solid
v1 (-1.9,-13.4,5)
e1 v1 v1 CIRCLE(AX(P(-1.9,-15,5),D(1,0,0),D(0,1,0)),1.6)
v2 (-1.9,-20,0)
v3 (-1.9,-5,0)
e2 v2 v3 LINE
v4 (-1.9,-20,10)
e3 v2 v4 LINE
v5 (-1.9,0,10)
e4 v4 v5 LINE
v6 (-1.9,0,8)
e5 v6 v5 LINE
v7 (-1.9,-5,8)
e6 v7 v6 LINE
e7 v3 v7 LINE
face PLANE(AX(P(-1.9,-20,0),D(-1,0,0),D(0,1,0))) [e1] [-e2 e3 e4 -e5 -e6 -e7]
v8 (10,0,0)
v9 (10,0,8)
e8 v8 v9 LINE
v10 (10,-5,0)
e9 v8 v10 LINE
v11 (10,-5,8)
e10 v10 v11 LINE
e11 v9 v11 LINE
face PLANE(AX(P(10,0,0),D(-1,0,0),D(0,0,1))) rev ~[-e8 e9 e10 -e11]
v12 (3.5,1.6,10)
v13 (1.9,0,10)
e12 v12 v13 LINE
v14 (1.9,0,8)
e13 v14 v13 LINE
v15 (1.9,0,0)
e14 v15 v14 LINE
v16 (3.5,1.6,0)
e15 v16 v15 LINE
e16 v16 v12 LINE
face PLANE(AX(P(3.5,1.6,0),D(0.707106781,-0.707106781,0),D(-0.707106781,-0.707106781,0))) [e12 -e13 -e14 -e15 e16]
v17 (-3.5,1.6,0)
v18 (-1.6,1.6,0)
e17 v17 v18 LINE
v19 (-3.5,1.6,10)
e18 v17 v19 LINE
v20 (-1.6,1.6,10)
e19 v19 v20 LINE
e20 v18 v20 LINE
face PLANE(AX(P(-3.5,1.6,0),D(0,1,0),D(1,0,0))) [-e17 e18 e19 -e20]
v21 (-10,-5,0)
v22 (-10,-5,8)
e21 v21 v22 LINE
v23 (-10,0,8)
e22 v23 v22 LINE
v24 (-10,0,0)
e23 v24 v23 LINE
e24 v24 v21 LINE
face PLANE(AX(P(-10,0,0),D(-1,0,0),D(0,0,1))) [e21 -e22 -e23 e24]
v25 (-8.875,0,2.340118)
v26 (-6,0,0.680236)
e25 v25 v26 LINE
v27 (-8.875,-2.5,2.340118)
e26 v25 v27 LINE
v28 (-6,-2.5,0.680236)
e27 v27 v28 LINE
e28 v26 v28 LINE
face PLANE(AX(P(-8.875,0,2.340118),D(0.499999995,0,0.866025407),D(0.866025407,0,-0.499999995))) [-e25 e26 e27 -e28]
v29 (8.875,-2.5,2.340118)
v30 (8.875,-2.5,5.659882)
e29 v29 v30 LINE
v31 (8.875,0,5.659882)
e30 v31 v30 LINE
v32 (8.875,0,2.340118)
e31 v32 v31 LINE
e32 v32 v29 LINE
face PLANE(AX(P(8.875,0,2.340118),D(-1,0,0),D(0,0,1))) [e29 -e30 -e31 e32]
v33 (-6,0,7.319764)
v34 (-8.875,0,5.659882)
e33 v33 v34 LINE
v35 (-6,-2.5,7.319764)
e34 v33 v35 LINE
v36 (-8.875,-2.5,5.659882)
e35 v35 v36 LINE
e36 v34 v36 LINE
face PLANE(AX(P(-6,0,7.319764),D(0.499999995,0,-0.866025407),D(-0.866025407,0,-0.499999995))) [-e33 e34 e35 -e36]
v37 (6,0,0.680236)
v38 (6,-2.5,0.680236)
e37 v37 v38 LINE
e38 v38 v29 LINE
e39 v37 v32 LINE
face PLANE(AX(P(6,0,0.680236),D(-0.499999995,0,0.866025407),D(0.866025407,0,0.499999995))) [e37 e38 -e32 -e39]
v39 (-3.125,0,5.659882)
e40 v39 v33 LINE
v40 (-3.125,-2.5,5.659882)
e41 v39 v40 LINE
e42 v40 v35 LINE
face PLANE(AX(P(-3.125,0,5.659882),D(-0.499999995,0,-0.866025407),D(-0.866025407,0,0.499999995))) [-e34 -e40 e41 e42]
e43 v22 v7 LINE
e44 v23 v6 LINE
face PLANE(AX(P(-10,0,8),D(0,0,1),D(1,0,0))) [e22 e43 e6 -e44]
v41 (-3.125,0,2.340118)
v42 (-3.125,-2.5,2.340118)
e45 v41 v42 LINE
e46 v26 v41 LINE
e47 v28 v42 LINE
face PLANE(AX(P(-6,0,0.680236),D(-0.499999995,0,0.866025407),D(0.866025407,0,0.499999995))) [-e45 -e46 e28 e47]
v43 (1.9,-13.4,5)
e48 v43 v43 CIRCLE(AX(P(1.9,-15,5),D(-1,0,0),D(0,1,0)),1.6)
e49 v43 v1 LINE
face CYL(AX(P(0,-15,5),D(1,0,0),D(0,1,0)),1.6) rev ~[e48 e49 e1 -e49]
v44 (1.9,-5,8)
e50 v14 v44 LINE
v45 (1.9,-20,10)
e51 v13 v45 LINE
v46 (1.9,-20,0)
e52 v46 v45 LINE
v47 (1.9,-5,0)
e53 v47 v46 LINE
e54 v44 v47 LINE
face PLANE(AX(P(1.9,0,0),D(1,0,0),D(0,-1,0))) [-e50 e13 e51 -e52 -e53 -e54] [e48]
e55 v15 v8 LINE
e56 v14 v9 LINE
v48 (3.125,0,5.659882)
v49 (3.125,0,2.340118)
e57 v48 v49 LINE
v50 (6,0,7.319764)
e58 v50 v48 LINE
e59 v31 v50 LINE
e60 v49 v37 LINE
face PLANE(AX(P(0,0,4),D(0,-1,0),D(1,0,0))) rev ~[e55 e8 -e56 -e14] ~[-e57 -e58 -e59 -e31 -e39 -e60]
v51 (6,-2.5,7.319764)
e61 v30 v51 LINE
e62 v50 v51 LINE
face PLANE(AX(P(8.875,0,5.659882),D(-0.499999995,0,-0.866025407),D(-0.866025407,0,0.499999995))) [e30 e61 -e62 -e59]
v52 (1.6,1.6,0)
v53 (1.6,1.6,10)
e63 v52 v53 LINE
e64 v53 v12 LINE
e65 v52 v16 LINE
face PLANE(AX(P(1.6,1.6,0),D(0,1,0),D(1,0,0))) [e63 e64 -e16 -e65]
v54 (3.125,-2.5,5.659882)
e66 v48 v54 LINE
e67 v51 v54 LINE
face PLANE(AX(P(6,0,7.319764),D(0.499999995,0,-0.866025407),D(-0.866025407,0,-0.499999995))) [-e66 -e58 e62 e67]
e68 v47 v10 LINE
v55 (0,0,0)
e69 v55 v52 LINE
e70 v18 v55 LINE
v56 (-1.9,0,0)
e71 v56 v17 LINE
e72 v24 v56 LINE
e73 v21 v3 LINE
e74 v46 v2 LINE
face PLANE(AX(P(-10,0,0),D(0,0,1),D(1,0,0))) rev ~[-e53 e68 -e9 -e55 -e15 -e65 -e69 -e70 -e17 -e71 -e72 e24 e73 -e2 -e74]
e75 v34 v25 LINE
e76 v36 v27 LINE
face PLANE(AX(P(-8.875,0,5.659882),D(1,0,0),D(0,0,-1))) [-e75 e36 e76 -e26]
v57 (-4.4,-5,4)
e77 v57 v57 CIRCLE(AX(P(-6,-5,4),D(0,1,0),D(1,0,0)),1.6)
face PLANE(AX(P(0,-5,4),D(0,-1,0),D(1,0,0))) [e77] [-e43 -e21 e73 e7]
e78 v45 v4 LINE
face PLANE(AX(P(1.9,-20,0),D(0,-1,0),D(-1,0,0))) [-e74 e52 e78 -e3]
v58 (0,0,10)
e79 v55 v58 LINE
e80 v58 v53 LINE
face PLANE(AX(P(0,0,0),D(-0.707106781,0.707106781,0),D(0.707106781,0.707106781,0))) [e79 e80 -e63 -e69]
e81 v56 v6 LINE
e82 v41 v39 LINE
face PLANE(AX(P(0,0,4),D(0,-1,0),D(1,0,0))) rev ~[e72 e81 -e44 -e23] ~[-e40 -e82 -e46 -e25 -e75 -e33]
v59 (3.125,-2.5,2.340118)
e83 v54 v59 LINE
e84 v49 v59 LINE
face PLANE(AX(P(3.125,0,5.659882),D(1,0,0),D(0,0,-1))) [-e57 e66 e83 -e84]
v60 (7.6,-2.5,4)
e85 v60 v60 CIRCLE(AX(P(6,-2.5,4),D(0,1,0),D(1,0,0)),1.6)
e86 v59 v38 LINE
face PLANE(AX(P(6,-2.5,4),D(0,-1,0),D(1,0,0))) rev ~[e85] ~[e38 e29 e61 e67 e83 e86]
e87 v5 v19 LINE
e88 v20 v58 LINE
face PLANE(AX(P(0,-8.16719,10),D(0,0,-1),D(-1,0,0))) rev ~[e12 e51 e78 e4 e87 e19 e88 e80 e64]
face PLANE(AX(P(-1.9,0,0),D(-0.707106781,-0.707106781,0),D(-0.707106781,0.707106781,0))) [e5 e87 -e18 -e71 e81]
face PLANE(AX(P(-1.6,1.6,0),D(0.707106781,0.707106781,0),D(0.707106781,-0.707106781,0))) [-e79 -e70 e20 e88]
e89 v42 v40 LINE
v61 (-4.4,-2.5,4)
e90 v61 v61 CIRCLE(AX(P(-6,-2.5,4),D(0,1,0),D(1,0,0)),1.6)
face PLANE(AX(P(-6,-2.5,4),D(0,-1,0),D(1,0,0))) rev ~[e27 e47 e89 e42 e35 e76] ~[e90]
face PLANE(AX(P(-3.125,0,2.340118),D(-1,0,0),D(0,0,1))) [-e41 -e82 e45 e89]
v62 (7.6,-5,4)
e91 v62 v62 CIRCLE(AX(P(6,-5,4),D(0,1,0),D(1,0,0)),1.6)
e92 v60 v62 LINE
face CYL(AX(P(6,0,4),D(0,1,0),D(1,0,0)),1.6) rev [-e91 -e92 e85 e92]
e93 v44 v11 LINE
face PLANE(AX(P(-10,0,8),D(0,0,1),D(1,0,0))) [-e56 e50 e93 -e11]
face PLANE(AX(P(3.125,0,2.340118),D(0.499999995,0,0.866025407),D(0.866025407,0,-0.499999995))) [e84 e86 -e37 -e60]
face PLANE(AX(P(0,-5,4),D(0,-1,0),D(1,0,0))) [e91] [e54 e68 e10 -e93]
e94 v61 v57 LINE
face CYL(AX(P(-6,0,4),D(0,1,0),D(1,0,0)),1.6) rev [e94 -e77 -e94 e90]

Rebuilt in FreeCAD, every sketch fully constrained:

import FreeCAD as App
import Part
import Sketcher

V = App.Vector
Q = App.Units.Quantity

doc = App.newDocument("Part")
body = doc.addObject("PartDesign::Body", "Body")

# Sketch on XY plane
sketch1 = doc.addObject("Sketcher::SketchObject", "Sketch")
body.addObject(sketch1)
sketch1.AttachmentSupport = (doc.XY_Plane, [""])
sketch1.MapMode = "FlatFace"
sketch1.addGeometry([
    Part.LineSegment(V(-3.5, 1.6, 0), V(-1.9, 0, 0)),  # 0
    Part.LineSegment(V(-1.9, 0, 0), V(-1.9, -20, 0)),  # 1
    Part.LineSegment(V(-1.9, -20, 0), V(1.9, -20, 0)),  # 2
    Part.LineSegment(V(1.9, -20, 0), V(1.9, 0, 0)),  # 3
    Part.LineSegment(V(1.9, 0, 0), V(3.5, 1.6, 0)),  # 4
    Part.LineSegment(V(3.5, 1.6, 0), V(1.6, 1.6, 0)),  # 5
    Part.LineSegment(V(1.6, 1.6, 0), V(0, 0, 0)),  # 6
    Part.LineSegment(V(0, 0, 0), V(-1.6, 1.6, 0)),  # 7
    Part.LineSegment(V(-1.6, 1.6, 0), V(-3.5, 1.6, 0)),  # 8
], False)
sketch1.addConstraint([
    Sketcher.Constraint("Coincident", 0, 2, 1, 1),
    Sketcher.Constraint("Coincident", 1, 2, 2, 1),
    Sketcher.Constraint("Coincident", 2, 2, 3, 1),
    Sketcher.Constraint("Coincident", 3, 2, 4, 1),
    Sketcher.Constraint("Coincident", 4, 2, 5, 1),
    Sketcher.Constraint("Coincident", 5, 2, 6, 1),
    Sketcher.Constraint("Coincident", 6, 2, 7, 1),
    Sketcher.Constraint("Coincident", 7, 2, 8, 1),
    Sketcher.Constraint("Coincident", 8, 2, 0, 1),
    Sketcher.Constraint("Vertical", 1),
    Sketcher.Constraint("Horizontal", 2),
    Sketcher.Constraint("Vertical", 3),
    Sketcher.Constraint("Horizontal", 5),
    Sketcher.Constraint("Horizontal", 8),
    Sketcher.Constraint("Coincident", 6, 2, -1, 1),
    Sketcher.Constraint("Symmetric", 0, 2, 3, 2, -1, 1),
    Sketcher.Constraint("Symmetric", 5, 2, 7, 2, -2),
    Sketcher.Constraint("PointOnObject", 0, 2, -1),
    Sketcher.Constraint("Perpendicular", 0, 4),
    Sketcher.Constraint("Parallel", 4, 6),
    Sketcher.Constraint("Perpendicular", 6, 7),
    Sketcher.Constraint("DistanceY", 1, 2, 1, 1, 20.0),
    Sketcher.Constraint("DistanceX", 2, 1, 2, 2, 3.8),
    Sketcher.Constraint("DistanceX", -1, 1, 4, 2, 3.5),
])
pad1 = doc.addObject("PartDesign::Pad", "Pad")
body.addObject(pad1)
pad1.Profile = sketch1
pad1.Length = 10

# Sketch on XZ plane
sketch2 = doc.addObject("Sketcher::SketchObject", "Sketch001")
body.addObject(sketch2)
sketch2.AttachmentSupport = (doc.XZ_Plane, [""])
sketch2.MapMode = "FlatFace"
sketch2.addGeometry([
    Part.LineSegment(V(-10, 8, 0), V(-10, 0, 0)),
    Part.LineSegment(V(-10, 0, 0), V(10, 0, 0)),
    Part.LineSegment(V(10, 0, 0), V(10, 8, 0)),
    Part.LineSegment(V(10, 8, 0), V(-10, 8, 0)),
], False)
sketch2.addConstraint([
    Sketcher.Constraint("Coincident", 0, 2, 1, 1),
    Sketcher.Constraint("Coincident", 1, 2, 2, 1),
    Sketcher.Constraint("Coincident", 2, 2, 3, 1),
    Sketcher.Constraint("Coincident", 3, 2, 0, 1),
    Sketcher.Constraint("Vertical", 0),
    Sketcher.Constraint("Horizontal", 1),
    Sketcher.Constraint("Vertical", 2),
    Sketcher.Constraint("Horizontal", 3),
    Sketcher.Constraint("Symmetric", 0, 2, 1, 2, -1, 1),
    Sketcher.Constraint("DistanceX", 1, 1, 1, 2, 20.0),
    Sketcher.Constraint("DistanceY", 0, 2, 0, 1, 8.0),
])
pad2 = doc.addObject("PartDesign::Pad", "Pad001")
body.addObject(pad2)
pad2.Profile = sketch2
pad2.Length = 5

# Sketch on XZ plane
sketch3 = doc.addObject("Sketcher::SketchObject", "Sketch002")
body.addObject(sketch3)
sketch3.AttachmentSupport = (doc.XZ_Plane, [""])
sketch3.MapMode = "FlatFace"
sketch3.addGeometry([
    Part.LineSegment(V(-3.1, 2.3, 0), V(-3.1, 5.7, 0)),  # 0
    Part.LineSegment(V(-3.1, 5.7, 0), V(-6, 7.3, 0)),  # 1
    Part.LineSegment(V(-6, 7.3, 0), V(-8.9, 5.7, 0)),  # 2
    Part.LineSegment(V(-8.9, 5.7, 0), V(-8.9, 2.3, 0)),  # 3
    Part.LineSegment(V(-8.9, 2.3, 0), V(-6, 0.7, 0)),  # 4
    Part.LineSegment(V(-6, 0.7, 0), V(-3.1, 2.3, 0)),  # 5
    Part.LineSegment(V(3.1, 2.3, 0), V(6, 0.7, 0)),  # 6
    Part.LineSegment(V(6, 0.7, 0), V(8.9, 2.3, 0)),  # 7
    Part.LineSegment(V(8.9, 2.3, 0), V(8.9, 5.7, 0)),  # 8
    Part.LineSegment(V(8.9, 5.7, 0), V(6, 7.3, 0)),  # 9
    Part.LineSegment(V(6, 7.3, 0), V(3.1, 5.7, 0)),  # 10
    Part.LineSegment(V(3.1, 5.7, 0), V(3.1, 2.3, 0)),  # 11
], False)
sketch3.addConstraint([
    Sketcher.Constraint("Coincident", 0, 2, 1, 1),
    Sketcher.Constraint("Coincident", 1, 2, 2, 1),
    Sketcher.Constraint("Coincident", 2, 2, 3, 1),
    Sketcher.Constraint("Coincident", 3, 2, 4, 1),
    Sketcher.Constraint("Coincident", 4, 2, 5, 1),
    Sketcher.Constraint("Coincident", 5, 2, 0, 1),
    Sketcher.Constraint("Coincident", 6, 2, 7, 1),
    Sketcher.Constraint("Coincident", 7, 2, 8, 1),
    Sketcher.Constraint("Coincident", 8, 2, 9, 1),
    Sketcher.Constraint("Coincident", 9, 2, 10, 1),
    Sketcher.Constraint("Coincident", 10, 2, 11, 1),
    Sketcher.Constraint("Coincident", 11, 2, 6, 1),
    Sketcher.Constraint("Vertical", 0),
    Sketcher.Constraint("Vertical", 3),
    Sketcher.Constraint("Vertical", 8),
    Sketcher.Constraint("Vertical", 11),
    Sketcher.Constraint("Symmetric", 4, 2, 6, 2, -2),
    Sketcher.Constraint("Symmetric", 3, 2, 7, 2, -2),
    Sketcher.Constraint("Symmetric", 1, 2, 9, 2, -2),
    Sketcher.Constraint("Symmetric", 0, 2, 10, 2, -2),
    Sketcher.Constraint("Parallel", 1, 4),
    Sketcher.Constraint("Parallel", 2, 5),
    Sketcher.Constraint("Parallel", 4, 6),
    Sketcher.Constraint("Parallel", 5, 7),
    Sketcher.Constraint("Parallel", 6, 9),
    Sketcher.Constraint("Horizontal", 0, 2, 2, 2),
    Sketcher.Constraint("Horizontal", 3, 2, 5, 2),
    Sketcher.Constraint("Angle", 1, Q("150 deg")),
    Sketcher.Constraint("DistanceX", 1, 2, -1, 1, 6.0),
    Sketcher.Constraint("DistanceX", 2, 2, 0, 2, 5.75),
    Sketcher.Constraint("DistanceY", 0, 1, 0, 2, 3.319764),
    Sketcher.Constraint("DistanceY", -1, 1, 0, 2, 5.659882),
])
pocket1 = doc.addObject("PartDesign::Pocket", "Pocket")
body.addObject(pocket1)
pocket1.Profile = sketch3
pocket1.Length = 2.5
pocket1.Reversed = True

# Sketch on XZ plane
sketch4 = doc.addObject("Sketcher::SketchObject", "Sketch003")
body.addObject(sketch4)
sketch4.AttachmentSupport = (doc.XZ_Plane, [""])
sketch4.MapMode = "FlatFace"
sketch4.addGeometry([
    Part.Circle(V(-6, 4, 0), V(0, 0, 1), 1.6),
    Part.Circle(V(6, 4, 0), V(0, 0, 1), 1.6),
], False)
sketch4.addConstraint([
    Sketcher.Constraint("Equal", 0, 1),
    Sketcher.Constraint("Symmetric", 0, 3, 1, 3, -2),
    Sketcher.Constraint("Diameter", 0, 3.2),
    Sketcher.Constraint("DistanceX", 0, 3, -1, 1, 6.0),
    Sketcher.Constraint("DistanceY", -1, 1, 0, 3, 4.0),
])
pocket2 = doc.addObject("PartDesign::Pocket", "Pocket001")
body.addObject(pocket2)
pocket2.Profile = sketch4
pocket2.Type = "ThroughAll"
pocket2.Reversed = True

# Sketch on YZ plane
sketch5 = doc.addObject("Sketcher::SketchObject", "Sketch004")
body.addObject(sketch5)
sketch5.AttachmentSupport = (doc.YZ_Plane, [""])
sketch5.MapMode = "FlatFace"
sketch5.addGeometry(Part.Circle(V(-15, 5, 0), V(0, 0, 1), 1.6), False)
sketch5.addConstraint([
    Sketcher.Constraint("Diameter", 0, 3.2),
    Sketcher.Constraint("DistanceX", 0, 3, -1, 1, 15.0),
    Sketcher.Constraint("DistanceY", -1, 1, 0, 3, 5.0),
])
pocket3 = doc.addObject("PartDesign::Pocket", "Pocket002")
body.addObject(pocket3)
pocket3.Profile = sketch5
pocket3.Type = "ThroughAll"
pocket3.Midplane = True

doc.recompute()
